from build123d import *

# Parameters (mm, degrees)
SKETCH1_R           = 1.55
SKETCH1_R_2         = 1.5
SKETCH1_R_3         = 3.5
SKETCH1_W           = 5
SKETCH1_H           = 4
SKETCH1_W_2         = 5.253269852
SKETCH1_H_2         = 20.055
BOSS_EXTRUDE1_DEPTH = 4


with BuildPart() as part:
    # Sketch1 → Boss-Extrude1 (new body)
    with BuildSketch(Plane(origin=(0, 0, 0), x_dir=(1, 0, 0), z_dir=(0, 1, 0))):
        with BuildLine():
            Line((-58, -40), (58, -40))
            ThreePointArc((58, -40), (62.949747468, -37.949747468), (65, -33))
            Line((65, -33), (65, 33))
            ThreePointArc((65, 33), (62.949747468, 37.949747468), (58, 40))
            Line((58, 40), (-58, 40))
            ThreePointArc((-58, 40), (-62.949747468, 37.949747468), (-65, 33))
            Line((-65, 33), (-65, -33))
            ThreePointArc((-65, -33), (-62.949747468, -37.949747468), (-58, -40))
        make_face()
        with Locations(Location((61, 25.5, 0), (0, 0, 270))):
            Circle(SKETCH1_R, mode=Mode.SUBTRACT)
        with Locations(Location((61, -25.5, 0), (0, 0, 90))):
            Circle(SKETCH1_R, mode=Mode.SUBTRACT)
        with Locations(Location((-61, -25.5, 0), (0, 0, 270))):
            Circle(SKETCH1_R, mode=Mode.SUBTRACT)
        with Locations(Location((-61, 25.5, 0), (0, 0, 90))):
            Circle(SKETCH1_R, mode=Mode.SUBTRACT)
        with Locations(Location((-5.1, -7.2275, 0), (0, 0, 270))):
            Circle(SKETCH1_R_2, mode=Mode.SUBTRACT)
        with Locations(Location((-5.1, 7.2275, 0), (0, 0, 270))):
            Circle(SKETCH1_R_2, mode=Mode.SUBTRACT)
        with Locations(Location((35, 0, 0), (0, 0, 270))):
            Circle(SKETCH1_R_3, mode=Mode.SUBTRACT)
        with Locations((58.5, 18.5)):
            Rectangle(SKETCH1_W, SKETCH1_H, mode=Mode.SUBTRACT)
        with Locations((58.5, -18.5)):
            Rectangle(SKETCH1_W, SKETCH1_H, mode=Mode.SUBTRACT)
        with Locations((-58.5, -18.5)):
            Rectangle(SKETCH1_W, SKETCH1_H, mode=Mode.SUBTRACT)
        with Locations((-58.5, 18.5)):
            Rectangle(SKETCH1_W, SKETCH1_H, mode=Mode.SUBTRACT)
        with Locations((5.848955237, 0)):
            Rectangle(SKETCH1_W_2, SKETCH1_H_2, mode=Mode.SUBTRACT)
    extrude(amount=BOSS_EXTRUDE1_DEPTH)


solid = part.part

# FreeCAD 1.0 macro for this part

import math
import FreeCAD as App
import Part
import Sketcher

V = App.Vector
Q = App.Units.Quantity

doc = App.newDocument("Part")
body = doc.addObject("PartDesign::Body", "Body")

sketch1 = body.newObject("Sketcher::SketchObject", "Sketch")
sketch1.AttachmentSupport = (doc.getObject("XZ_Plane"), [""])
sketch1.MapMode = "FlatFace"
sketch1.addGeometry([
    Part.LineSegment(V(-58, 40, 0), V(58, 40, 0)),
    Part.ArcOfCircle(Part.Circle(V(58, 33, 0), V(0, 0, 1), 7), math.radians(0), math.radians(90)),
    Part.LineSegment(V(65, 33, 0), V(65, -33, 0)),
    Part.ArcOfCircle(Part.Circle(V(58, -33, 0), V(0, 0, 1), 7), math.radians(-90), math.radians(0)),
    Part.LineSegment(V(58, -40, 0), V(-58, -40, 0)),
    Part.ArcOfCircle(Part.Circle(V(-58, -33, 0), V(0, 0, 1), 7), math.radians(-180), math.radians(-90)),
    Part.LineSegment(V(-65, -33, 0), V(-65, 33, 0)),
    Part.ArcOfCircle(Part.Circle(V(-58, 33, 0), V(0, 0, 1), 7), math.radians(90), math.radians(180)),
    Part.Circle(V(-61, 25.5, 0), V(0, 0, 1), 1.6),
    Part.LineSegment(V(-56, 20.5, 0), V(-61, 20.5, 0)),
    Part.LineSegment(V(-61, 20.5, 0), V(-61, 16.5, 0)),
    Part.LineSegment(V(-61, 16.5, 0), V(-56, 16.5, 0)),
    Part.LineSegment(V(-56, 16.5, 0), V(-56, 20.5, 0)),
    Part.Circle(V(-5.1, 7.2, 0), V(0, 0, 1), 1.5),
    Part.Circle(V(61, 25.5, 0), V(0, 0, 1), 1.6),
    Part.LineSegment(V(61, 20.5, 0), V(56, 20.5, 0)),
    Part.LineSegment(V(56, 20.5, 0), V(56, 16.5, 0)),
    Part.LineSegment(V(56, 16.5, 0), V(61, 16.5, 0)),
    Part.LineSegment(V(61, 16.5, 0), V(61, 20.5, 0)),
    Part.LineSegment(V(8.5, 10, 0), V(3.2, 10, 0)),
    Part.LineSegment(V(3.2, 10, 0), V(3.2, -10, 0)),
    Part.LineSegment(V(3.2, -10, 0), V(8.5, -10, 0)),
    Part.LineSegment(V(8.5, -10, 0), V(8.5, 10, 0)),
    Part.Circle(V(35, 0, 0), V(0, 0, 1), 3.5),
    Part.Circle(V(-5.1, -7.2, 0), V(0, 0, 1), 1.5),
    Part.LineSegment(V(-56, -16.5, 0), V(-61, -16.5, 0)),
    Part.LineSegment(V(-61, -16.5, 0), V(-61, -20.5, 0)),
    Part.LineSegment(V(-61, -20.5, 0), V(-56, -20.5, 0)),
    Part.LineSegment(V(-56, -20.5, 0), V(-56, -16.5, 0)),
    Part.Circle(V(-61, -25.5, 0), V(0, 0, 1), 1.6),
    Part.LineSegment(V(61, -16.5, 0), V(56, -16.5, 0)),
    Part.LineSegment(V(56, -16.5, 0), V(56, -20.5, 0)),
    Part.LineSegment(V(56, -20.5, 0), V(61, -20.5, 0)),
    Part.LineSegment(V(61, -20.5, 0), V(61, -16.5, 0)),
    Part.Circle(V(61, -25.5, 0), V(0, 0, 1), 1.6),
], False)
sketch1.addConstraint([
    Sketcher.Constraint("Tangent", 0, 2, 1, 2),
    Sketcher.Constraint("Tangent", 1, 1, 2, 1),
    Sketcher.Constraint("Tangent", 2, 2, 3, 2),
    Sketcher.Constraint("Tangent", 3, 1, 4, 1),
    Sketcher.Constraint("Tangent", 4, 2, 5, 2),
    Sketcher.Constraint("Tangent", 5, 1, 6, 1),
    Sketcher.Constraint("Tangent", 6, 2, 7, 2),
    Sketcher.Constraint("Tangent", 7, 1, 0, 1),
    Sketcher.Constraint("Coincident", 9, 2, 10, 1),
    Sketcher.Constraint("Coincident", 10, 2, 11, 1),
    Sketcher.Constraint("Coincident", 11, 2, 12, 1),
    Sketcher.Constraint("Coincident", 12, 2, 9, 1),
    Sketcher.Constraint("Coincident", 15, 2, 16, 1),
    Sketcher.Constraint("Coincident", 16, 2, 17, 1),
    Sketcher.Constraint("Coincident", 17, 2, 18, 1),
    Sketcher.Constraint("Coincident", 18, 2, 15, 1),
    Sketcher.Constraint("Coincident", 19, 2, 20, 1),
    Sketcher.Constraint("Coincident", 20, 2, 21, 1),
    Sketcher.Constraint("Coincident", 21, 2, 22, 1),
    Sketcher.Constraint("Coincident", 22, 2, 19, 1),
    Sketcher.Constraint("Coincident", 25, 2, 26, 1),
    Sketcher.Constraint("Coincident", 26, 2, 27, 1),
    Sketcher.Constraint("Coincident", 27, 2, 28, 1),
    Sketcher.Constraint("Coincident", 28, 2, 25, 1),
    Sketcher.Constraint("Coincident", 30, 2, 31, 1),
    Sketcher.Constraint("Coincident", 31, 2, 32, 1),
    Sketcher.Constraint("Coincident", 32, 2, 33, 1),
    Sketcher.Constraint("Coincident", 33, 2, 30, 1),
    Sketcher.Constraint("Horizontal", 0),
    Sketcher.Constraint("Vertical", 2),
    Sketcher.Constraint("Horizontal", 4),
    Sketcher.Constraint("Vertical", 6),
    Sketcher.Constraint("Horizontal", 9),
    Sketcher.Constraint("Vertical", 10),
    Sketcher.Constraint("Horizontal", 11),
    Sketcher.Constraint("Vertical", 12),
    Sketcher.Constraint("Horizontal", 15),
    Sketcher.Constraint("Vertical", 16),
    Sketcher.Constraint("Horizontal", 17),
    Sketcher.Constraint("Vertical", 18),
    Sketcher.Constraint("Horizontal", 19),
    Sketcher.Constraint("Vertical", 20),
    Sketcher.Constraint("Horizontal", 21),
    Sketcher.Constraint("Vertical", 22),
    Sketcher.Constraint("Horizontal", 25),
    Sketcher.Constraint("Vertical", 26),
    Sketcher.Constraint("Horizontal", 27),
    Sketcher.Constraint("Vertical", 28),
    Sketcher.Constraint("Horizontal", 30),
    Sketcher.Constraint("Vertical", 31),
    Sketcher.Constraint("Horizontal", 32),
    Sketcher.Constraint("Vertical", 33),
    Sketcher.Constraint("Equal", 1, 3),
    Sketcher.Constraint("Equal", 3, 5),
    Sketcher.Constraint("Equal", 5, 7),
    Sketcher.Constraint("Equal", 8, 14),
    Sketcher.Constraint("Equal", 13, 24),
    Sketcher.Constraint("Equal", 14, 29),
    Sketcher.Constraint("Equal", 29, 34),
    Sketcher.Constraint("Symmetric", 1, 3, 5, 3, -1, 1),
    Sketcher.Constraint("Symmetric", 14, 3, 29, 3, -1, 1),
    Sketcher.Constraint("Symmetric", 8, 3, 34, 3, -1, 1),
    Sketcher.Constraint("Symmetric", 17, 2, 25, 2, -1, 1),
    Sketcher.Constraint("Symmetric", 15, 2, 27, 2, -1, 1),
    Sketcher.Constraint("Symmetric", 11, 2, 30, 2, -1, 1),
    Sketcher.Constraint("Symmetric", 9, 2, 32, 2, -1, 1),
    Sketcher.Constraint("Symmetric", 8, 3, 14, 3, -2),
    Sketcher.Constraint("Symmetric", 12, 2, 15, 2, -2),
    Sketcher.Constraint("Symmetric", 10, 2, 17, 2, -2),
    Sketcher.Constraint("Symmetric", 13, 3, 24, 3, -1),
    Sketcher.Constraint("PointOnObject", 23, 3, -1),
    Sketcher.Constraint("Vertical", 29, 3, 9, 2),
    Sketcher.Constraint("Diameter", 13, Q("3 mm")),
    Sketcher.Constraint("Diameter", 23, Q("7 mm")),
    Sketcher.Constraint("Radius", 1, Q("7 mm")),
    Sketcher.Constraint("Diameter", 8, Q("3.1 mm")),
    Sketcher.Constraint("DistanceX", 0, 1, 0, 2, Q("116 mm")),
    Sketcher.Constraint("DistanceX", 9, 2, 9, 1, Q("5 mm")),
    Sketcher.Constraint("DistanceY", 2, 2, 2, 1, Q("66 mm")),
    Sketcher.Constraint("DistanceY", 10, 2, 10, 1, Q("4 mm")),
    Sketcher.Constraint("DistanceX", 8, 3, -1, 1, Q("61 mm")),
    Sketcher.Constraint("DistanceX", -1, 1, 23, 3, Q("35 mm")),
    Sketcher.Constraint("DistanceY", 29, 3, 8, 3, Q("51 mm")),
    Sketcher.Constraint("DistanceY", 9, 2, 8, 3, Q("5 mm")),
    Sketcher.Constraint("DistanceX", 13, 3, -1, 1, Q("5.1 mm")),
    Sketcher.Constraint("DistanceY", 13, 3, 19, 2, Q("2.8 mm")),
    Sketcher.Constraint("DistanceY", 20, 2, 24, 3, Q("2.8 mm")),
    Sketcher.Constraint("DistanceY", 20, 2, 20, 1, Q("20.055 mm")),
    Sketcher.Constraint("DistanceX", 19, 2, 19, 1, Q("5.25327 mm")),
    Sketcher.Constraint("DistanceX", -1, 1, 19, 2, Q("3.22232 mm")),
])
pad1 = body.newObject("PartDesign::Pad", "Pad")
pad1.Profile = sketch1
pad1.Length = 4
pad1.Reversed = True

doc.recompute()
